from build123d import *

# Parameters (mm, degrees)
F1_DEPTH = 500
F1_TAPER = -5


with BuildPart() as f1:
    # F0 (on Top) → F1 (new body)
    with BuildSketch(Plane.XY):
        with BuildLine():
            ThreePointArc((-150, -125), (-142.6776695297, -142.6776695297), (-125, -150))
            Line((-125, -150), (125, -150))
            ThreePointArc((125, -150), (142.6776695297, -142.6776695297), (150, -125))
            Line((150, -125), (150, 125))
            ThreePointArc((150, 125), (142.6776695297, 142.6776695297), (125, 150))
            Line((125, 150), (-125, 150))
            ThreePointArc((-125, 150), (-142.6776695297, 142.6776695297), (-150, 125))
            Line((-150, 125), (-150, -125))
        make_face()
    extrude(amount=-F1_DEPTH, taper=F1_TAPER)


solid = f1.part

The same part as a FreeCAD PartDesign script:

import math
import FreeCAD as App
import Part
import Sketcher
from FreeCAD import Vector

doc = App.newDocument("Part")
body = doc.addObject("PartDesign::Body", "Body")

# Sketch on XY plane
sketch1 = body.newObject("Sketcher::SketchObject", "Sketch")
sketch1.AttachmentSupport = (doc.getObject("XY_Plane"), [""])
sketch1.MapMode = "FlatFace"
sketch1.addGeometry(Part.ArcOfCircle(Part.Circle(Vector(-125, -125, 0), Vector(0, 0, 1), 25), math.radians(180), math.radians(270)), False)
sketch1.addGeometry(Part.LineSegment(Vector(-125, -150, 0), Vector(125, -150, 0)), False)
sketch1.addGeometry(Part.ArcOfCircle(Part.Circle(Vector(125, -125, 0), Vector(0, 0, 1), 25), math.radians(-90), math.radians(0)), False)
sketch1.addGeometry(Part.LineSegment(Vector(150, -125, 0), Vector(150, 125, 0)), False)
sketch1.addGeometry(Part.ArcOfCircle(Part.Circle(Vector(125, 125, 0), Vector(0, 0, 1), 25), math.radians(0), math.radians(90)), False)
sketch1.addGeometry(Part.LineSegment(Vector(125, 150, 0), Vector(-125, 150, 0)), False)
sketch1.addGeometry(Part.ArcOfCircle(Part.Circle(Vector(-125, 125, 0), Vector(0, 0, 1), 25), math.radians(90), math.radians(180)), False)
sketch1.addGeometry(Part.LineSegment(Vector(-150, 125, 0), Vector(-150, -125, 0)), False)
sketch1.addConstraint(Sketcher.Constraint("Tangent", 0, 2, 1, 1))
sketch1.addConstraint(Sketcher.Constraint("Tangent", 1, 2, 2, 1))
sketch1.addConstraint(Sketcher.Constraint("Tangent", 2, 2, 3, 1))
sketch1.addConstraint(Sketcher.Constraint("Tangent", 3, 2, 4, 1))
sketch1.addConstraint(Sketcher.Constraint("Tangent", 4, 2, 5, 1))
sketch1.addConstraint(Sketcher.Constraint("Tangent", 5, 2, 6, 1))
sketch1.addConstraint(Sketcher.Constraint("Tangent", 6, 2, 7, 1))
sketch1.addConstraint(Sketcher.Constraint("Tangent", 7, 2, 0, 1))
sketch1.addConstraint(Sketcher.Constraint("Horizontal", 1))
sketch1.addConstraint(Sketcher.Constraint("Vertical", 3))
sketch1.addConstraint(Sketcher.Constraint("Horizontal", 5))
sketch1.addConstraint(Sketcher.Constraint("Vertical", 7))
sketch1.addConstraint(Sketcher.Constraint("Equal", 0, 2))
sketch1.addConstraint(Sketcher.Constraint("Equal", 2, 4))
sketch1.addConstraint(Sketcher.Constraint("Equal", 4, 6))
sketch1.addConstraint(Sketcher.Constraint("Symmetric", 0, 3, 4, 3, -1, 1))
sketch1.addConstraint(Sketcher.Constraint("Equal", 5, 3))
sketch1.addConstraint(Sketcher.Constraint("Radius", 0, 25.0))
sketch1.addConstraint(Sketcher.Constraint("DistanceX", 1, 1, 1, 2, 250.0))
pad1 = body.newObject("PartDesign::Pad", "Pad")
pad1.Profile = sketch1
pad1.Length = 500
pad1.Reversed = True
pad1.TaperAngle = 5

doc.recompute()
